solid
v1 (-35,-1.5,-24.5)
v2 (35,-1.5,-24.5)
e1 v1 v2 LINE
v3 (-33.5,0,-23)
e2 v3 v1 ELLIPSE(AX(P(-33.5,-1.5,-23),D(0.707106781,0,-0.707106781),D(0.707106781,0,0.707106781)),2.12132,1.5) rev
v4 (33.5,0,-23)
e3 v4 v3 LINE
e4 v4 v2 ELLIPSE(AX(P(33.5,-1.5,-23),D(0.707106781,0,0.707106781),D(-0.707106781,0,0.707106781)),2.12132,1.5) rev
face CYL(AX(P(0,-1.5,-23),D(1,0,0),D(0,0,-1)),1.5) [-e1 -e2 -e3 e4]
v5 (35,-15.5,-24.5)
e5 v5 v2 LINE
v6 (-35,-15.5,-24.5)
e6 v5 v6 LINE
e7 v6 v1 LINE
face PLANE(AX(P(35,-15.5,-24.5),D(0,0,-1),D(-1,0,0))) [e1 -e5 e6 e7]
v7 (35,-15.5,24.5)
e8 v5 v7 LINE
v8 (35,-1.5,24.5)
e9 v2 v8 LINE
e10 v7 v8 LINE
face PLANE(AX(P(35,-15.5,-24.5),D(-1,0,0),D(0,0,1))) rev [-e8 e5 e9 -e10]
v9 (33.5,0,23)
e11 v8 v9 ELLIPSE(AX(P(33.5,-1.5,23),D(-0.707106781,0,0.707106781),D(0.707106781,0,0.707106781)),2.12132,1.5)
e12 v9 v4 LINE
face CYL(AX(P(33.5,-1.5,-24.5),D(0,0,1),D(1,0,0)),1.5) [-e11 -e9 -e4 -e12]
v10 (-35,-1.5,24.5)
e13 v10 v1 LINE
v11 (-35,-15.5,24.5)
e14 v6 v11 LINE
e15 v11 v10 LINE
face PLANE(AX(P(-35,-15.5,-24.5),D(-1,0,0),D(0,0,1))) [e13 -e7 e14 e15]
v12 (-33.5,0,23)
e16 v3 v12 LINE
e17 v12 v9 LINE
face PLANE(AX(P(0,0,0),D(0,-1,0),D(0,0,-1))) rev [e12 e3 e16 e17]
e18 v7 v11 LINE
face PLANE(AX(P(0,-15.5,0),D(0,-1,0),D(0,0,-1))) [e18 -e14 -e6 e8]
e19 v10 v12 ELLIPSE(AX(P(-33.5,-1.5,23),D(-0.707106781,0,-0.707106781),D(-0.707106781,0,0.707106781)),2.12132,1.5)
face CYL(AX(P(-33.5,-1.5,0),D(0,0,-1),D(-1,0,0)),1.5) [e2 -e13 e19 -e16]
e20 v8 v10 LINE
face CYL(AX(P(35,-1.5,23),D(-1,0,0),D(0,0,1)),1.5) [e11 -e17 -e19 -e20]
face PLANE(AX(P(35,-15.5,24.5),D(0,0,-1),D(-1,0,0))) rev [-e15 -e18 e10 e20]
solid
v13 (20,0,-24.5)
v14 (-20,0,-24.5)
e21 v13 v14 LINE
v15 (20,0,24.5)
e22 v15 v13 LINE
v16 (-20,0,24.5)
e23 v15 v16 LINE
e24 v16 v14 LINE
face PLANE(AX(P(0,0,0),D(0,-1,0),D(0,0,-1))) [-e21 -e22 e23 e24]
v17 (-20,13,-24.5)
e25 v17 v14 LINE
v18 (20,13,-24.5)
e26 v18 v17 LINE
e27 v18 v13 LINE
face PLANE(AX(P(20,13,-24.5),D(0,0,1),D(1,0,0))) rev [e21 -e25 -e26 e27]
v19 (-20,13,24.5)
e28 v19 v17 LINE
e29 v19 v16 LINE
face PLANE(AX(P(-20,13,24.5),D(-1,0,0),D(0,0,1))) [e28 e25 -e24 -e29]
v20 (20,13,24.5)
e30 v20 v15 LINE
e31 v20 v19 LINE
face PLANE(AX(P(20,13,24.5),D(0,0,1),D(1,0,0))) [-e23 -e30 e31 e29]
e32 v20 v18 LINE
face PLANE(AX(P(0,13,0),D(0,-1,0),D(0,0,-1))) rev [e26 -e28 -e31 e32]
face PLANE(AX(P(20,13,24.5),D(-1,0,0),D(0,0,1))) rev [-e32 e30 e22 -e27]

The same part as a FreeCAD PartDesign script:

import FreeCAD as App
import Part
import Sketcher


def edges_at(feature, points):
    """Names of the edges that pass closest to the given points."""
    edges = feature.Shape.Edges
    near = lambda p: min(range(len(edges)), key=lambda i: edges[i].distToShape(Part.Vertex(*p))[0])
    return sorted({f"Edge{near(p) + 1}" for p in points})

doc = App.newDocument("Part")
body = doc.addObject("PartDesign::Body", "Body")

sketch1 = body.newObject("Sketcher::SketchObject", "Sketch")
sketch1.AttachmentSupport = (doc.getObject("XZ_Plane"), [""])
sketch1.MapMode = "FlatFace"
sketch1.addGeometry([
    Part.LineSegment(App.Vector(-20, -24, 0), App.Vector(-20, 24, 0)),
    Part.LineSegment(App.Vector(-20, 24, 0), App.Vector(20, 24, 0)),
    Part.LineSegment(App.Vector(20, 24, 0), App.Vector(20, -24, 0)),
    Part.LineSegment(App.Vector(20, -24, 0), App.Vector(-20, -24, 0)),
], False)
sketch1.addConstraint([
    Sketcher.Constraint("Coincident", 0, 2, 1, 1),
    Sketcher.Constraint("Coincident", 1, 2, 2, 1),
    Sketcher.Constraint("Coincident", 2, 2, 3, 1),
    Sketcher.Constraint("Coincident", 3, 2, 0, 1),
    Sketcher.Constraint("Vertical", 0),
    Sketcher.Constraint("Horizontal", 1),
    Sketcher.Constraint("Vertical", 2),
    Sketcher.Constraint("Horizontal", 3),
    Sketcher.Constraint("Symmetric", 0, 2, 2, 2, -1, 1),
    Sketcher.Constraint("DistanceX", 1, 1, 1, 2, 40.0),
    Sketcher.Constraint("DistanceY", 0, 1, 0, 2, 49.0),
])
pad1 = body.newObject("PartDesign::Pad", "Pad")
pad1.Profile = sketch1
pad1.Length = 13
pad1.Reversed = True
body2 = doc.addObject("PartDesign::Body", "Body001")

sketch2 = body2.newObject("Sketcher::SketchObject", "Sketch001")
sketch2.AttachmentSupport = (doc.getObject("XZ_Plane001"), [""])
sketch2.MapMode = "FlatFace"
sketch2.addGeometry([
    Part.LineSegment(App.Vector(-35, -24, 0), App.Vector(-35, 24, 0)),
    Part.LineSegment(App.Vector(-35, 24, 0), App.Vector(35, 24, 0)),
    Part.LineSegment(App.Vector(35, 24, 0), App.Vector(35, -24, 0)),
    Part.LineSegment(App.Vector(35, -24, 0), App.Vector(-35, -24, 0)),
], False)
sketch2.addConstraint([
    Sketcher.Constraint("Coincident", 0, 2, 1, 1),
    Sketcher.Constraint("Coincident", 1, 2, 2, 1),
    Sketcher.Constraint("Coincident", 2, 2, 3, 1),
    Sketcher.Constraint("Coincident", 3, 2, 0, 1),
    Sketcher.Constraint("Vertical", 0),
    Sketcher.Constraint("Horizontal", 1),
    Sketcher.Constraint("Vertical", 2),
    Sketcher.Constraint("Horizontal", 3),
    Sketcher.Constraint("Symmetric", 0, 2, 2, 2, -1, 1),
    Sketcher.Constraint("DistanceX", 1, 1, 1, 2, 70.0),
    Sketcher.Constraint("DistanceY", 0, 1, 0, 2, 49.0),
])
pad2 = body2.newObject("PartDesign::Pad", "Pad001")
pad2.Profile = sketch2
pad2.Length = 15.5
doc.recompute()

fillet = body2.newObject("PartDesign::Fillet", "Fillet")
fillet.Base = (pad2, edges_at(pad2, [
    (0, 0, -24.5),
    (-35, 0, 0),
    (0, 0, 24.5),
    (35, 0, 0),
]))
fillet.Radius = 1.5

doc.recompute()
